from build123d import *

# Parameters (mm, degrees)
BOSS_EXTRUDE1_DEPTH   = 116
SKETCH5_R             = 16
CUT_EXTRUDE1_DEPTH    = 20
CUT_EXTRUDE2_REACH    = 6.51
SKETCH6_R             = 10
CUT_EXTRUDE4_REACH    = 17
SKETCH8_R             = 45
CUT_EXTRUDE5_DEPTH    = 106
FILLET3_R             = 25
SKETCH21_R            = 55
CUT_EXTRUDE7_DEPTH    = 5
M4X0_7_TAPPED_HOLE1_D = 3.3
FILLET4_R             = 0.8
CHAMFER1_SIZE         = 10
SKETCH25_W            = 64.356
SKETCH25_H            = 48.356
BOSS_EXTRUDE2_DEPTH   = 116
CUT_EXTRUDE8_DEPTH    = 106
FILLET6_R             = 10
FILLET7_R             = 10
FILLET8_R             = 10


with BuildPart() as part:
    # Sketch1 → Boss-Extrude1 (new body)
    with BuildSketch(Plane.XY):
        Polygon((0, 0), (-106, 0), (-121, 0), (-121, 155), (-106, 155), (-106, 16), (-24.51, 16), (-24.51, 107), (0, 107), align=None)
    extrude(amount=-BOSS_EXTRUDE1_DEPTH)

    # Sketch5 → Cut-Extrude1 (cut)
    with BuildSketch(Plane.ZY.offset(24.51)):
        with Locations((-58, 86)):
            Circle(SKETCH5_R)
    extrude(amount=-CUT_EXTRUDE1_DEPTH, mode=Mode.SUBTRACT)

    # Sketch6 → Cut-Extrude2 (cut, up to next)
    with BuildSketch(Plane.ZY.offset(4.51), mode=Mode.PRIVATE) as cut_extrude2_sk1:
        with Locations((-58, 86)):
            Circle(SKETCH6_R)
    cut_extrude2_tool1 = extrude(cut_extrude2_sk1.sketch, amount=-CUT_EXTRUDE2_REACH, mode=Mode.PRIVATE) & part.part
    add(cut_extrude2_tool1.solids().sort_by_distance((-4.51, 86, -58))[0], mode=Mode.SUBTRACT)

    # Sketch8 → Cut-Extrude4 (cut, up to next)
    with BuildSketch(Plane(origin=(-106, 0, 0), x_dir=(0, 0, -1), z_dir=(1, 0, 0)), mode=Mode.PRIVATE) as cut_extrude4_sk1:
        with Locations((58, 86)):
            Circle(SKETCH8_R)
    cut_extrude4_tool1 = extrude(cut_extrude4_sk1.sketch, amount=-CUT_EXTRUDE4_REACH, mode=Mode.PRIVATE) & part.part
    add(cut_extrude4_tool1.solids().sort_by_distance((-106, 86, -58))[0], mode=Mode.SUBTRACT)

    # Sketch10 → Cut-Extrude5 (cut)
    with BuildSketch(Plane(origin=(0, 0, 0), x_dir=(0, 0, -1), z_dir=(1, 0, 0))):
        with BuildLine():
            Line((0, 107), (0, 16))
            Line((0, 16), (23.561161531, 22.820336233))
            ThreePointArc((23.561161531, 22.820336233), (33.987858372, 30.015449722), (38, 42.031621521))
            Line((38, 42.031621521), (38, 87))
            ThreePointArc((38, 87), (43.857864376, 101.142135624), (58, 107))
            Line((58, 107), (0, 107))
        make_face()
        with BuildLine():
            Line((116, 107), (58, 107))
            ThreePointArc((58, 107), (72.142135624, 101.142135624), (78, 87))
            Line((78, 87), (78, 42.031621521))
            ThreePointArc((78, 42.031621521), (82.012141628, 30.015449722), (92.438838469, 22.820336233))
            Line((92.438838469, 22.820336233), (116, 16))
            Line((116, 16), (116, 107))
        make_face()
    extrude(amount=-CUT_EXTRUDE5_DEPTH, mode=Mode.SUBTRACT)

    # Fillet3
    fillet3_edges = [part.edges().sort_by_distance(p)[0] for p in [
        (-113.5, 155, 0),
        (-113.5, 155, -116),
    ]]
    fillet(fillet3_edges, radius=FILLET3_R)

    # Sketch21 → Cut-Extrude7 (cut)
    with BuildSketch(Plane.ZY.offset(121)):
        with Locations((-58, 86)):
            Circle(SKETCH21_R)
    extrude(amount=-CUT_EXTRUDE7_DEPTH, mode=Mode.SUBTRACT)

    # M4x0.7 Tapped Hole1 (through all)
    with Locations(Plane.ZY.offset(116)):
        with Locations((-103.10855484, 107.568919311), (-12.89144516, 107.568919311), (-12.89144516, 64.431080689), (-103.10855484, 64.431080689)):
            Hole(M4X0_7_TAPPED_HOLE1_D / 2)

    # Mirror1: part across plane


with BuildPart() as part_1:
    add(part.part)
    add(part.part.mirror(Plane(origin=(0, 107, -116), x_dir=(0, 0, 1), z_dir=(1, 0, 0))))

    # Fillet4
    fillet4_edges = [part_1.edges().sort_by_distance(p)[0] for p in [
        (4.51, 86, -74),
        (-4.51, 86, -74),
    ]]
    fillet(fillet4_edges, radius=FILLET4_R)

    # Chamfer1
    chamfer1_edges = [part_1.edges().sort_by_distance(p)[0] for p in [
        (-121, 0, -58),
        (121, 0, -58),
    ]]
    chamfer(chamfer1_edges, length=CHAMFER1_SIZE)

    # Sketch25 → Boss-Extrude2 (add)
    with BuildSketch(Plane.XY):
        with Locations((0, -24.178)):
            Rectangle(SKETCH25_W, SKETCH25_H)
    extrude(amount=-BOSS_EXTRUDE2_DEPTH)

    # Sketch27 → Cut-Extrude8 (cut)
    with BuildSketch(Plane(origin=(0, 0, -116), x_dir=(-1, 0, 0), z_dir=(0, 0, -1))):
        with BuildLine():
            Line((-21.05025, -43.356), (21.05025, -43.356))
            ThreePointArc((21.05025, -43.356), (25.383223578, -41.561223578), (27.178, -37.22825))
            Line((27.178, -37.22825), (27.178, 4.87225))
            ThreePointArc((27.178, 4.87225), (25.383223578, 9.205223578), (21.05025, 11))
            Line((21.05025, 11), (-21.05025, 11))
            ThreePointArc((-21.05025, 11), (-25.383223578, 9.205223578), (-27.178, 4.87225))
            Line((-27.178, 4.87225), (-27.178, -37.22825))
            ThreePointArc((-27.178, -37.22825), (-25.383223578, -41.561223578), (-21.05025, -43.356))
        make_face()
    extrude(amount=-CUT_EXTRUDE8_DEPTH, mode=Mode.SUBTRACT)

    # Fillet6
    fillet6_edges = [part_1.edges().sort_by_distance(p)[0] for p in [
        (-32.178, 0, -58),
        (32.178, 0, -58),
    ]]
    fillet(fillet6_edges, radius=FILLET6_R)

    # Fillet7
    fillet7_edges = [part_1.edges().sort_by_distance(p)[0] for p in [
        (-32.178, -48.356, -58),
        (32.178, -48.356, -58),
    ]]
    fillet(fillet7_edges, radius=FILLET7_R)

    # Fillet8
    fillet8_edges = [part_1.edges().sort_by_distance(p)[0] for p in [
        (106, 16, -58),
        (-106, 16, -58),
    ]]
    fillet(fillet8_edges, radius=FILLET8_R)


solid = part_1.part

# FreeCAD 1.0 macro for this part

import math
import FreeCAD as App
import Part
import Sketcher
from FreeCAD import Vector


def edges_at(feature, points):
    """Names of the edges that pass closest to the given points."""
    edges = feature.Shape.Edges
    near = lambda p: min(range(len(edges)), key=lambda i: edges[i].distToShape(Part.Vertex(*p))[0])
    return sorted({f"Edge{near(p) + 1}" for p in points})

doc = App.newDocument("Part")
body = doc.addObject("PartDesign::Body", "Body")

sketch1 = body.newObject("Sketcher::SketchObject", "Sketch")
sketch1.AttachmentSupport = (doc.getObject("XY_Plane"), [""])
sketch1.MapMode = "FlatFace"
sketch1.addGeometry([
    Part.LineSegment(Vector(-121, 0, 0), Vector(0, 0, 0)),
    Part.LineSegment(Vector(0, 0, 0), Vector(0, 107, 0)),
    Part.LineSegment(Vector(0, 107, 0), Vector(-25, 107, 0)),
    Part.LineSegment(Vector(-25, 107, 0), Vector(-25, 16, 0)),
    Part.LineSegment(Vector(-25, 16, 0), Vector(-106, 16, 0)),
    Part.LineSegment(Vector(-106, 16, 0), Vector(-106, 155, 0)),
    Part.LineSegment(Vector(-106, 155, 0), Vector(-121, 155, 0)),
    Part.LineSegment(Vector(-121, 155, 0), Vector(-121, 0, 0)),
], False)
sketch1.addConstraint([
    Sketcher.Constraint("Coincident", 0, 2, 1, 1),
    Sketcher.Constraint("Coincident", 1, 2, 2, 1),
    Sketcher.Constraint("Coincident", 2, 2, 3, 1),
    Sketcher.Constraint("Coincident", 3, 2, 4, 1),
    Sketcher.Constraint("Coincident", 4, 2, 5, 1),
    Sketcher.Constraint("Coincident", 5, 2, 6, 1),
    Sketcher.Constraint("Coincident", 6, 2, 7, 1),
    Sketcher.Constraint("Coincident", 7, 2, 0, 1),
    Sketcher.Constraint("Horizontal", 0),
    Sketcher.Constraint("Vertical", 1),
    Sketcher.Constraint("Horizontal", 2),
    Sketcher.Constraint("Vertical", 3),
    Sketcher.Constraint("Horizontal", 4),
    Sketcher.Constraint("Vertical", 5),
    Sketcher.Constraint("Horizontal", 6),
    Sketcher.Constraint("Vertical", 7),
    Sketcher.Constraint("Coincident", 0, 2, -1, 1),
    Sketcher.Constraint("DistanceX", 0, 1, 0, 2, 121.0),
    Sketcher.Constraint("DistanceX", 6, 2, 6, 1, 15.0),
    Sketcher.Constraint("DistanceY", 1, 1, 1, 2, 107.0),
    Sketcher.Constraint("DistanceY", 3, 2, 3, 1, 91.0),
    Sketcher.Constraint("DistanceY", 5, 1, 5, 2, 139.0),
    Sketcher.Constraint("DistanceX", 2, 2, 2, 1, 24.51),
])
pad1 = body.newObject("PartDesign::Pad", "Pad")
pad1.Profile = sketch1
pad1.Length = 116
pad1.Reversed = True

sketch2 = body.newObject("Sketcher::SketchObject", "Sketch001")
sketch2.AttachmentSupport = (doc.getObject("YZ_Plane"), [""])
sketch2.MapMode = "FlatFace"
sketch2.AttachmentOffset = App.Placement(Vector(0, 0, -24.51), App.Rotation())
sketch2.addGeometry(Part.Circle(Vector(86, -58, 0), Vector(0, 0, 1), 16), False)
sketch2.addConstraint([
    Sketcher.Constraint("Diameter", 0, 32.0),
    Sketcher.Constraint("DistanceX", -1, 1, 0, 3, 86.0),
    Sketcher.Constraint("DistanceY", 0, 3, -1, 1, 58.0),
])
pocket1 = body.newObject("PartDesign::Pocket", "Pocket")
pocket1.Profile = sketch2
pocket1.Length = 20
pocket1.Reversed = True

sketch3 = body.newObject("Sketcher::SketchObject", "Sketch002")
sketch3.AttachmentSupport = (doc.getObject("YZ_Plane"), [""])
sketch3.MapMode = "FlatFace"
sketch3.AttachmentOffset = App.Placement(Vector(0, 0, -4.51), App.Rotation())
sketch3.addGeometry(Part.Circle(Vector(86, -58, 0), Vector(0, 0, 1), 10), False)
sketch3.addConstraint([
    Sketcher.Constraint("Diameter", 0, 20.0),
    Sketcher.Constraint("DistanceX", -1, 1, 0, 3, 86.0),
    Sketcher.Constraint("DistanceY", 0, 3, -1, 1, 58.0),
])
pocket2 = body.newObject("PartDesign::Pocket", "Pocket001")
pocket2.Profile = sketch3
pocket2.Type = "UpToFirst"
pocket2.Reversed = True

sketch4 = body.newObject("Sketcher::SketchObject", "Sketch003")
sketch4.AttachmentSupport = (doc.getObject("YZ_Plane"), [""])
sketch4.MapMode = "FlatFace"
sketch4.AttachmentOffset = App.Placement(Vector(0, 0, -106), App.Rotation())
sketch4.addGeometry(Part.Circle(Vector(86, -58, 0), Vector(0, 0, 1), 45), False)
sketch4.addConstraint([
    Sketcher.Constraint("Diameter", 0, 90.0),
    Sketcher.Constraint("DistanceX", -1, 1, 0, 3, 86.0),
    Sketcher.Constraint("DistanceY", 0, 3, -1, 1, 58.0),
])
pocket3 = body.newObject("PartDesign::Pocket", "Pocket002")
pocket3.Profile = sketch4
pocket3.Type = "UpToFirst"

sketch5 = body.newObject("Sketcher::SketchObject", "Sketch004")
sketch5.AttachmentSupport = (doc.getObject("YZ_Plane"), [""])
sketch5.MapMode = "FlatFace"
sketch5.addGeometry([
    Part.LineSegment(Vector(107, 0, 0), Vector(16, 0, 0)),
    Part.LineSegment(Vector(16, 0, 0), Vector(23, -24, 0)),
    Part.ArcOfCircle(Part.Circle(Vector(42, -18, 0), Vector(0, 0, 1), 20), math.radians(-164), math.radians(-90)),
    Part.LineSegment(Vector(42, -38, 0), Vector(87, -38, 0)),
    Part.ArcOfCircle(Part.Circle(Vector(87, -58, 0), Vector(0, 0, 1), 20), math.radians(0), math.radians(90)),
    Part.LineSegment(Vector(107, -58, 0), Vector(107, 0, 0)),
    Part.LineSegment(Vector(107, -116, 0), Vector(107, -58, 0)),
    Part.ArcOfCircle(Part.Circle(Vector(87, -58, 0), Vector(0, 0, 1), 20), math.radians(-90), math.radians(0)),
    Part.LineSegment(Vector(87, -78, 0), Vector(42, -78, 0)),
    Part.ArcOfCircle(Part.Circle(Vector(42, -98, 0), Vector(0, 0, 1), 20), math.radians(90), math.radians(164)),
    Part.LineSegment(Vector(23, -92, 0), Vector(16, -116, 0)),
    Part.LineSegment(Vector(16, -116, 0), Vector(107, -116, 0)),
], False)
sketch5.addConstraint([
    Sketcher.Constraint("Coincident", 0, 2, 1, 1),
    Sketcher.Constraint("Tangent", 1, 2, 2, 1),
    Sketcher.Constraint("Tangent", 2, 2, 3, 1),
    Sketcher.Constraint("Tangent", 3, 2, 4, 2),
    Sketcher.Constraint("Tangent", 4, 1, 5, 1),
    Sketcher.Constraint("Coincident", 5, 2, 0, 1),
    Sketcher.Constraint("Tangent", 6, 2, 7, 2),
    Sketcher.Constraint("Tangent", 7, 1, 8, 1),
    Sketcher.Constraint("Tangent", 8, 2, 9, 1),
    Sketcher.Constraint("Tangent", 9, 2, 10, 1),
    Sketcher.Constraint("Coincident", 10, 2, 11, 1),
    Sketcher.Constraint("Coincident", 11, 2, 6, 1),
    Sketcher.Constraint("Horizontal", 0),
    Sketcher.Constraint("Horizontal", 3),
    Sketcher.Constraint("Vertical", 5),
    Sketcher.Constraint("Vertical", 6),
    Sketcher.Constraint("Horizontal", 8),
    Sketcher.Constraint("Horizontal", 11),
    Sketcher.Constraint("Coincident", 7, 3, 4, 3),
    Sketcher.Constraint("Equal", 2, 4),
    Sketcher.Constraint("Equal", 4, 7),
    Sketcher.Constraint("Equal", 7, 9),
    Sketcher.Constraint("PointOnObject", 0, 2, -1),
    Sketcher.Constraint("Vertical", 2, 3, 9, 3),
    Sketcher.Constraint("Vertical", 1, 2, 9, 2),
    Sketcher.Constraint("Vertical", 0, 2, 10, 2),
    Sketcher.Constraint("Radius", 2, 20.0),
    Sketcher.Constraint("DistanceX", 0, 2, 0, 1, 91.0),
    Sketcher.Constraint("DistanceY", 5, 1, 5, 2, 58.0),
    Sketcher.Constraint("DistanceX", -1, 1, 4, 3, 87.0),
    Sketcher.Constraint("DistanceX", 3, 1, 3, 2, 44.968378),
])
pocket4 = body.newObject("PartDesign::Pocket", "Pocket003")
pocket4.Profile = sketch5
pocket4.Length = 106
doc.recompute()

fillet = body.newObject("PartDesign::Fillet", "Fillet")
fillet.Base = (pocket4, edges_at(pocket4, [(-113.5, 155, 0), (-113.5, 155, -116)]))
fillet.Radius = 25

sketch6 = body.newObject("Sketcher::SketchObject", "Sketch005")
sketch6.AttachmentSupport = (doc.getObject("YZ_Plane"), [""])
sketch6.MapMode = "FlatFace"
sketch6.AttachmentOffset = App.Placement(Vector(0, 0, -121), App.Rotation())
sketch6.addGeometry(Part.Circle(Vector(86, -58, 0), Vector(0, 0, 1), 55), False)
sketch6.addConstraint([
    Sketcher.Constraint("Diameter", 0, 110.0),
    Sketcher.Constraint("DistanceX", -1, 1, 0, 3, 86.0),
    Sketcher.Constraint("DistanceY", 0, 3, -1, 1, 58.0),
])
pocket5 = body.newObject("PartDesign::Pocket", "Pocket004")
pocket5.Profile = sketch6
pocket5.Length = 5
pocket5.Reversed = True

sketch7 = body.newObject("Sketcher::SketchObject", "Sketch006")
sketch7.AttachmentSupport = (doc.getObject("YZ_Plane"), [""])
sketch7.MapMode = "FlatFace"
sketch7.AttachmentOffset = App.Placement(Vector(0, 0, -116), App.Rotation())
sketch7.addGeometry([
    Part.Circle(Vector(107.6, -103.1, 0), Vector(0, 0, 1), 1.6),
    Part.Circle(Vector(107.6, -12.9, 0), Vector(0, 0, 1), 1.6),
    Part.Circle(Vector(64.4, -12.9, 0), Vector(0, 0, 1), 1.6),
    Part.Circle(Vector(64.4, -103.1, 0), Vector(0, 0, 1), 1.6),
], False)
sketch7.addConstraint([
    Sketcher.Constraint("Equal", 0, 1),
    Sketcher.Constraint("Equal", 1, 2),
    Sketcher.Constraint("Equal", 2, 3),
    Sketcher.Constraint("Horizontal", 1, 3, 2, 3),
    Sketcher.Constraint("Horizontal", 0, 3, 3, 3),
    Sketcher.Constraint("Vertical", 0, 3, 1, 3),
    Sketcher.Constraint("Vertical", 2, 3, 3, 3),
    Sketcher.Constraint("Diameter", 0, 3.3),
    Sketcher.Constraint("DistanceX", -1, 1, 0, 3, 107.568919),
    Sketcher.Constraint("DistanceX", -1, 1, 2, 3, 64.431081),
    Sketcher.Constraint("DistanceY", 0, 3, 1, 3, 90.21711),
    Sketcher.Constraint("DistanceY", 0, 3, -1, 1, 103.108555),
])
doc.recompute()
hole = body.newObject("PartDesign::Hole", "Hole")
hole.Profile = sketch7
hole.ThreadType = "None"
hole.Diameter = 3.3
hole.DepthType = "ThroughAll"
hole.Reversed = True
body2 = doc.addObject("PartDesign::Body", "Body001")
doc.recompute()

body2.BaseFeature = body
doc.recompute()

mirroring = doc.addObject("Part::Mirroring", "Mirroring")
mirroring.Source = body
mirroring.Base = Vector(0, 107, -116)
mirroring.Normal = Vector(1, 0, 0)
body3 = doc.addObject("PartDesign::Body", "Body002")
body3.BaseFeature = mirroring
boolean = body2.newObject("PartDesign::Boolean", "Boolean")
boolean.Type = "Fuse"
boolean.addObjects([body3])
doc.recompute()

fillet2 = body2.newObject("PartDesign::Fillet", "Fillet001")
fillet2.Base = (boolean, edges_at(boolean, [(4.51, 86, -74), (-4.51, 86, -74)]))
fillet2.Radius = 0.8
doc.recompute()

chamfer = body2.newObject("PartDesign::Chamfer", "Chamfer")
chamfer.Base = (fillet2, edges_at(fillet2, [(-121, 0, -58), (121, 0, -58)]))
chamfer.Size = 10

sketch8 = body2.newObject("Sketcher::SketchObject", "Sketch007")
sketch8.AttachmentSupport = (doc.getObject("XY_Plane001"), [""])
sketch8.MapMode = "FlatFace"
sketch8.addGeometry([
    Part.LineSegment(Vector(-32, 0, 0), Vector(-32, -48, 0)),
    Part.LineSegment(Vector(-32, -48, 0), Vector(32, -48, 0)),
    Part.LineSegment(Vector(32, -48, 0), Vector(32, 0, 0)),
    Part.LineSegment(Vector(32, 0, 0), Vector(-32, 0, 0)),
], False)
sketch8.addConstraint([
    Sketcher.Constraint("Coincident", 0, 2, 1, 1),
    Sketcher.Constraint("Coincident", 1, 2, 2, 1),
    Sketcher.Constraint("Coincident", 2, 2, 3, 1),
    Sketcher.Constraint("Coincident", 3, 2, 0, 1),
    Sketcher.Constraint("Vertical", 0),
    Sketcher.Constraint("Horizontal", 1),
    Sketcher.Constraint("Vertical", 2),
    Sketcher.Constraint("Horizontal", 3),
    Sketcher.Constraint("Symmetric", 2, 2, 3, 2, -1, 1),
    Sketcher.Constraint("DistanceX", 1, 1, 1, 2, 64.356),
    Sketcher.Constraint("DistanceY", 0, 2, 0, 1, 48.356),
])
pad2 = body2.newObject("PartDesign::Pad", "Pad001")
pad2.Profile = sketch8
pad2.Length = 116
pad2.Reversed = True

sketch9 = body2.newObject("Sketcher::SketchObject", "Sketch008")
sketch9.AttachmentSupport = (doc.getObject("XY_Plane001"), [""])
sketch9.MapMode = "FlatFace"
sketch9.AttachmentOffset = App.Placement(Vector(0, 0, -116), App.Rotation())
sketch9.addGeometry([
    Part.LineSegment(Vector(21, -43, 0), Vector(-21, -43, 0)),
    Part.ArcOfCircle(Part.Circle(Vector(-21, -37, 0), Vector(0, 0, 1), 6), math.radians(-180), math.radians(-90)),
    Part.LineSegment(Vector(-27, -37, 0), Vector(-27, 5, 0)),
    Part.ArcOfCircle(Part.Circle(Vector(-21, 5, 0), Vector(0, 0, 1), 6), math.radians(90), math.radians(180)),
    Part.LineSegment(Vector(-21, 11, 0), Vector(21, 11, 0)),
    Part.ArcOfCircle(Part.Circle(Vector(21, 5, 0), Vector(0, 0, 1), 6), math.radians(0), math.radians(90)),
    Part.LineSegment(Vector(27, 5, 0), Vector(27, -37, 0)),
    Part.ArcOfCircle(Part.Circle(Vector(21, -37, 0), Vector(0, 0, 1), 6), math.radians(-90), math.radians(0)),
], False)
sketch9.addConstraint([
    Sketcher.Constraint("Tangent", 0, 2, 1, 2),
    Sketcher.Constraint("Tangent", 1, 1, 2, 1),
    Sketcher.Constraint("Tangent", 2, 2, 3, 2),
    Sketcher.Constraint("Tangent", 3, 1, 4, 1),
    Sketcher.Constraint("Tangent", 4, 2, 5, 2),
    Sketcher.Constraint("Tangent", 5, 1, 6, 1),
    Sketcher.Constraint("Tangent", 6, 2, 7, 2),
    Sketcher.Constraint("Tangent", 7, 1, 0, 1),
    Sketcher.Constraint("Horizontal", 0),
    Sketcher.Constraint("Vertical", 2),
    Sketcher.Constraint("Horizontal", 4),
    Sketcher.Constraint("Vertical", 6),
    Sketcher.Constraint("Equal", 1, 3),
    Sketcher.Constraint("Equal", 3, 5),
    Sketcher.Constraint("Equal", 5, 7),
    Sketcher.Constraint("Equal", 4, 2),
    Sketcher.Constraint("DistanceY", -1, 1, 3, 1, 11.0),
    Sketcher.Constraint("Radius", 1, 6.12775),
    Sketcher.Constraint("DistanceX", 0, 2, 0, 1, 42.1005),
    Sketcher.Constraint("DistanceX", 1, 1, -1, 1, 27.178),
])
pocket6 = body2.newObject("PartDesign::Pocket", "Pocket005")
pocket6.Profile = sketch9
pocket6.Length = 106
pocket6.Reversed = True
doc.recompute()

fillet3 = body2.newObject("PartDesign::Fillet", "Fillet002")
fillet3.Base = (pocket6, edges_at(pocket6, [(-32.178, 0, -58), (32.178, 0, -58)]))
fillet3.Radius = 10
doc.recompute()

fillet4 = body2.newObject("PartDesign::Fillet", "Fillet003")
fillet4.Base = (fillet3, edges_at(fillet3, [(-32.178, -48.356, -58), (32.178, -48.356, -58)]))
fillet4.Radius = 10
doc.recompute()

fillet5 = body2.newObject("PartDesign::Fillet", "Fillet004")
fillet5.Base = (fillet4, edges_at(fillet4, [(106, 16, -58), (-106, 16, -58)]))
fillet5.Radius = 10
mirroring.Visibility = False

doc.recompute()
